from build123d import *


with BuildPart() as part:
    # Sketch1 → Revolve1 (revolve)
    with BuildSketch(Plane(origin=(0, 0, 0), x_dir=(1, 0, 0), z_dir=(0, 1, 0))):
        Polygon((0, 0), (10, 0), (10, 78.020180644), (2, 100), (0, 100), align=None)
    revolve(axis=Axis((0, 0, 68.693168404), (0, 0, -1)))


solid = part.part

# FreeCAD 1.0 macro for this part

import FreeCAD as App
import Part
import Sketcher
Q = App.Units.Quantity


def add_polygon(sketch, points):
    """Adds a closed chain of lines whose ends are joined by coincident constraints."""
    first, n = sketch.GeometryCount, len(points)
    for a, b in zip(points, points[1:] + points[:1]):
        sketch.addGeometry(Part.LineSegment(App.Vector(*a, 0), App.Vector(*b, 0)), False)
    for i in range(n):
        sketch.addConstraint(Sketcher.Constraint("Coincident", first + i, 2, first + (i + 1) % n, 1))

doc = App.newDocument("Part")
body = doc.addObject("PartDesign::Body", "Body")

# Sketch on XZ plane
sketch1 = body.newObject("Sketcher::SketchObject", "Sketch")
sketch1.AttachmentSupport = (doc.getObject("XZ_Plane"), [""])
sketch1.MapMode = "FlatFace"
add_polygon(sketch1, [(0, 0), (10, 0), (10, -78), (2, -100), (0, -100)])  # lines 0-4
sketch1.addConstraint([
    Sketcher.Constraint("Horizontal", 0),
    Sketcher.Constraint("Vertical", 1),
    Sketcher.Constraint("Horizontal", 3),
    Sketcher.Constraint("Vertical", 4),
    Sketcher.Constraint("Coincident", 4, 2, -1, 1),
    Sketcher.Constraint("DistanceX", 0, 1, 0, 2, 10.0),
    Sketcher.Constraint("DistanceX", 3, 2, 3, 1, 2.0),
    Sketcher.Constraint("DistanceY", 4, 1, 4, 2, 100.0),
    Sketcher.Constraint("Angle", 2, Q("-110 deg")),
])
revolution = body.newObject("PartDesign::Revolution", "Revolution")
revolution.Profile = sketch1
revolution.ReferenceAxis = (sketch1, ["V_Axis"])
revolution.Angle = 360

doc.recompute()
